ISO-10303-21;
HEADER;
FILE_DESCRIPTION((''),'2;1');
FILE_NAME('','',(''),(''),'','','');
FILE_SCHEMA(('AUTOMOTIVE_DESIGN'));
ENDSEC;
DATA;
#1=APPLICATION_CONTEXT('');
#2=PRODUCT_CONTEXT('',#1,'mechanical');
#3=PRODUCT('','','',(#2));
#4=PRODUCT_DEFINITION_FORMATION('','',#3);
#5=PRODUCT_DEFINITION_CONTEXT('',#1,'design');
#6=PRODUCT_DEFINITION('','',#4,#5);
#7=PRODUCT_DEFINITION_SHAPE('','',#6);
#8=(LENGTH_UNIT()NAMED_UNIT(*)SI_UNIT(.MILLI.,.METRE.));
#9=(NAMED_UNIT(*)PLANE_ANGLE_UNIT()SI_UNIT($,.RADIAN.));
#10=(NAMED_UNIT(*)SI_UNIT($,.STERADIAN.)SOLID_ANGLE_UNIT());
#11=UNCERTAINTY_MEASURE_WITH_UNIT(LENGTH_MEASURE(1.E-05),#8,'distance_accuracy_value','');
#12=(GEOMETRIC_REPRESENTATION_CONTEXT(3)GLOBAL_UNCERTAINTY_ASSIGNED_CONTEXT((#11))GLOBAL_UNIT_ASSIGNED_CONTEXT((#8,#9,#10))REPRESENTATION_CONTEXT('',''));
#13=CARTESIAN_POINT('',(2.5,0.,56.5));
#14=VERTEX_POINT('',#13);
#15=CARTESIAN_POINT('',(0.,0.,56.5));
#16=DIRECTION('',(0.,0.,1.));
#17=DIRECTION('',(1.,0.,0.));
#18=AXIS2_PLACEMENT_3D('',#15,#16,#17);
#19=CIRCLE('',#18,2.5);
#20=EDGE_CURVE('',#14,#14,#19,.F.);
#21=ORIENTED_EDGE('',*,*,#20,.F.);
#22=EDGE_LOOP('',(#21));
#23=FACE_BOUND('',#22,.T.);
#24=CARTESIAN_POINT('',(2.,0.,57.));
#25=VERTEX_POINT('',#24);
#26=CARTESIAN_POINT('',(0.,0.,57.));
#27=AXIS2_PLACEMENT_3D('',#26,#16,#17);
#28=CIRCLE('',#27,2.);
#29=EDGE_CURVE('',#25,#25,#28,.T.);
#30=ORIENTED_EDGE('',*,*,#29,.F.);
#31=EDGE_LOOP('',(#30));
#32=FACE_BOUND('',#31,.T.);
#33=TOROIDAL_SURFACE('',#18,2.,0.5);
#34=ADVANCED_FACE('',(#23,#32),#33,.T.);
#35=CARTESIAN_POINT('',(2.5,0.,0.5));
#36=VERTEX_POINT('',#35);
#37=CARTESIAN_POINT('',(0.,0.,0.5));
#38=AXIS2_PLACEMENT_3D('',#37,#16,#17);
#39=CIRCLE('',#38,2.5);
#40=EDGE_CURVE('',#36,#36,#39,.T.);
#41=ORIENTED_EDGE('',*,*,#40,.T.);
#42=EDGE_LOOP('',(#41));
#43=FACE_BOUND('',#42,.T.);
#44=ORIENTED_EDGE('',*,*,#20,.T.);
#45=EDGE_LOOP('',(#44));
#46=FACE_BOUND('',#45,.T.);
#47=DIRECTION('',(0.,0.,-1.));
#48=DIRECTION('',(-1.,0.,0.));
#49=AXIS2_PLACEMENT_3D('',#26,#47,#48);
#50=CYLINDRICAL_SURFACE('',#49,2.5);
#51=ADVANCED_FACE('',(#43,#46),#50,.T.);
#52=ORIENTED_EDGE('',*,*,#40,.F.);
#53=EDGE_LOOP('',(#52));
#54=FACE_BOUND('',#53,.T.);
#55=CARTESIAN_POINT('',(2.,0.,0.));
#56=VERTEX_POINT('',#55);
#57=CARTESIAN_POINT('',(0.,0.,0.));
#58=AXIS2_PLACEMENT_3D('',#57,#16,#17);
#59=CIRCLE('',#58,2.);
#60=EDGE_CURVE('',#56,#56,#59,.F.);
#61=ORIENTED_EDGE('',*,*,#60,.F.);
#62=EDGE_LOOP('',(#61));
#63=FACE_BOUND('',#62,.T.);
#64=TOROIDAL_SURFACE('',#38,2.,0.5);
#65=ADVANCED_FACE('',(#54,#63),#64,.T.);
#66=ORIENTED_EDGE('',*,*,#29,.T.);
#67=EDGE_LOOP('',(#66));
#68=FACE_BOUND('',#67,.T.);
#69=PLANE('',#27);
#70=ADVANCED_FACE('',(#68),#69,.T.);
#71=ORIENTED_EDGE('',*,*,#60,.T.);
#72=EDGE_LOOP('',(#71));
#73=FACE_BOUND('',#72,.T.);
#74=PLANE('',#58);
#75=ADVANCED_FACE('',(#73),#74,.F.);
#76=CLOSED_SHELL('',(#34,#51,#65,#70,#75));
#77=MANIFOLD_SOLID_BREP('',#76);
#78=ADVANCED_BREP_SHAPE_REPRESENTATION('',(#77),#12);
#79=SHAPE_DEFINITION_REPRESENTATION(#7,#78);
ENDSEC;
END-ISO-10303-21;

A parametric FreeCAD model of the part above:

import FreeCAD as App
import Part
import Sketcher
from FreeCAD import Vector
Q = App.Units.Quantity


def edges_at(feature, points):
    """Names of the edges that pass closest to the given points."""
    edges = feature.Shape.Edges
    near = lambda p: min(range(len(edges)), key=lambda i: edges[i].distToShape(Part.Vertex(*p))[0])
    return sorted({f"Edge{near(p) + 1}" for p in points})

doc = App.newDocument("Part")
body = doc.addObject("PartDesign::Body", "Body")

sketch1 = body.newObject("Sketcher::SketchObject", "Sketch")
sketch1.AttachmentSupport = (doc.getObject("XY_Plane"), [""])
sketch1.MapMode = "FlatFace"
sketch1.addGeometry(Part.Circle(Vector(0, 0, 0), Vector(0, 0, 1), 2.5), False)
sketch1.addConstraint(Sketcher.Constraint("Coincident", 0, 3, -1, 1))
sketch1.addConstraint(Sketcher.Constraint("Diameter", 0, Q("5 mm")))
pad1 = body.newObject("PartDesign::Pad", "Pad")
pad1.Profile = sketch1
pad1.Length = 57
doc.recompute()

fillet = body.newObject("PartDesign::Fillet", "Fillet")
fillet.Base = (pad1, edges_at(pad1, [(-2.5, 0, 0)]))
fillet.Radius = 0.5
doc.recompute()

fillet2 = body.newObject("PartDesign::Fillet", "Fillet001")
fillet2.Base = (fillet, edges_at(fillet, [(-2.5, 0, 57)]))
fillet2.Radius = 0.5

doc.recompute()
